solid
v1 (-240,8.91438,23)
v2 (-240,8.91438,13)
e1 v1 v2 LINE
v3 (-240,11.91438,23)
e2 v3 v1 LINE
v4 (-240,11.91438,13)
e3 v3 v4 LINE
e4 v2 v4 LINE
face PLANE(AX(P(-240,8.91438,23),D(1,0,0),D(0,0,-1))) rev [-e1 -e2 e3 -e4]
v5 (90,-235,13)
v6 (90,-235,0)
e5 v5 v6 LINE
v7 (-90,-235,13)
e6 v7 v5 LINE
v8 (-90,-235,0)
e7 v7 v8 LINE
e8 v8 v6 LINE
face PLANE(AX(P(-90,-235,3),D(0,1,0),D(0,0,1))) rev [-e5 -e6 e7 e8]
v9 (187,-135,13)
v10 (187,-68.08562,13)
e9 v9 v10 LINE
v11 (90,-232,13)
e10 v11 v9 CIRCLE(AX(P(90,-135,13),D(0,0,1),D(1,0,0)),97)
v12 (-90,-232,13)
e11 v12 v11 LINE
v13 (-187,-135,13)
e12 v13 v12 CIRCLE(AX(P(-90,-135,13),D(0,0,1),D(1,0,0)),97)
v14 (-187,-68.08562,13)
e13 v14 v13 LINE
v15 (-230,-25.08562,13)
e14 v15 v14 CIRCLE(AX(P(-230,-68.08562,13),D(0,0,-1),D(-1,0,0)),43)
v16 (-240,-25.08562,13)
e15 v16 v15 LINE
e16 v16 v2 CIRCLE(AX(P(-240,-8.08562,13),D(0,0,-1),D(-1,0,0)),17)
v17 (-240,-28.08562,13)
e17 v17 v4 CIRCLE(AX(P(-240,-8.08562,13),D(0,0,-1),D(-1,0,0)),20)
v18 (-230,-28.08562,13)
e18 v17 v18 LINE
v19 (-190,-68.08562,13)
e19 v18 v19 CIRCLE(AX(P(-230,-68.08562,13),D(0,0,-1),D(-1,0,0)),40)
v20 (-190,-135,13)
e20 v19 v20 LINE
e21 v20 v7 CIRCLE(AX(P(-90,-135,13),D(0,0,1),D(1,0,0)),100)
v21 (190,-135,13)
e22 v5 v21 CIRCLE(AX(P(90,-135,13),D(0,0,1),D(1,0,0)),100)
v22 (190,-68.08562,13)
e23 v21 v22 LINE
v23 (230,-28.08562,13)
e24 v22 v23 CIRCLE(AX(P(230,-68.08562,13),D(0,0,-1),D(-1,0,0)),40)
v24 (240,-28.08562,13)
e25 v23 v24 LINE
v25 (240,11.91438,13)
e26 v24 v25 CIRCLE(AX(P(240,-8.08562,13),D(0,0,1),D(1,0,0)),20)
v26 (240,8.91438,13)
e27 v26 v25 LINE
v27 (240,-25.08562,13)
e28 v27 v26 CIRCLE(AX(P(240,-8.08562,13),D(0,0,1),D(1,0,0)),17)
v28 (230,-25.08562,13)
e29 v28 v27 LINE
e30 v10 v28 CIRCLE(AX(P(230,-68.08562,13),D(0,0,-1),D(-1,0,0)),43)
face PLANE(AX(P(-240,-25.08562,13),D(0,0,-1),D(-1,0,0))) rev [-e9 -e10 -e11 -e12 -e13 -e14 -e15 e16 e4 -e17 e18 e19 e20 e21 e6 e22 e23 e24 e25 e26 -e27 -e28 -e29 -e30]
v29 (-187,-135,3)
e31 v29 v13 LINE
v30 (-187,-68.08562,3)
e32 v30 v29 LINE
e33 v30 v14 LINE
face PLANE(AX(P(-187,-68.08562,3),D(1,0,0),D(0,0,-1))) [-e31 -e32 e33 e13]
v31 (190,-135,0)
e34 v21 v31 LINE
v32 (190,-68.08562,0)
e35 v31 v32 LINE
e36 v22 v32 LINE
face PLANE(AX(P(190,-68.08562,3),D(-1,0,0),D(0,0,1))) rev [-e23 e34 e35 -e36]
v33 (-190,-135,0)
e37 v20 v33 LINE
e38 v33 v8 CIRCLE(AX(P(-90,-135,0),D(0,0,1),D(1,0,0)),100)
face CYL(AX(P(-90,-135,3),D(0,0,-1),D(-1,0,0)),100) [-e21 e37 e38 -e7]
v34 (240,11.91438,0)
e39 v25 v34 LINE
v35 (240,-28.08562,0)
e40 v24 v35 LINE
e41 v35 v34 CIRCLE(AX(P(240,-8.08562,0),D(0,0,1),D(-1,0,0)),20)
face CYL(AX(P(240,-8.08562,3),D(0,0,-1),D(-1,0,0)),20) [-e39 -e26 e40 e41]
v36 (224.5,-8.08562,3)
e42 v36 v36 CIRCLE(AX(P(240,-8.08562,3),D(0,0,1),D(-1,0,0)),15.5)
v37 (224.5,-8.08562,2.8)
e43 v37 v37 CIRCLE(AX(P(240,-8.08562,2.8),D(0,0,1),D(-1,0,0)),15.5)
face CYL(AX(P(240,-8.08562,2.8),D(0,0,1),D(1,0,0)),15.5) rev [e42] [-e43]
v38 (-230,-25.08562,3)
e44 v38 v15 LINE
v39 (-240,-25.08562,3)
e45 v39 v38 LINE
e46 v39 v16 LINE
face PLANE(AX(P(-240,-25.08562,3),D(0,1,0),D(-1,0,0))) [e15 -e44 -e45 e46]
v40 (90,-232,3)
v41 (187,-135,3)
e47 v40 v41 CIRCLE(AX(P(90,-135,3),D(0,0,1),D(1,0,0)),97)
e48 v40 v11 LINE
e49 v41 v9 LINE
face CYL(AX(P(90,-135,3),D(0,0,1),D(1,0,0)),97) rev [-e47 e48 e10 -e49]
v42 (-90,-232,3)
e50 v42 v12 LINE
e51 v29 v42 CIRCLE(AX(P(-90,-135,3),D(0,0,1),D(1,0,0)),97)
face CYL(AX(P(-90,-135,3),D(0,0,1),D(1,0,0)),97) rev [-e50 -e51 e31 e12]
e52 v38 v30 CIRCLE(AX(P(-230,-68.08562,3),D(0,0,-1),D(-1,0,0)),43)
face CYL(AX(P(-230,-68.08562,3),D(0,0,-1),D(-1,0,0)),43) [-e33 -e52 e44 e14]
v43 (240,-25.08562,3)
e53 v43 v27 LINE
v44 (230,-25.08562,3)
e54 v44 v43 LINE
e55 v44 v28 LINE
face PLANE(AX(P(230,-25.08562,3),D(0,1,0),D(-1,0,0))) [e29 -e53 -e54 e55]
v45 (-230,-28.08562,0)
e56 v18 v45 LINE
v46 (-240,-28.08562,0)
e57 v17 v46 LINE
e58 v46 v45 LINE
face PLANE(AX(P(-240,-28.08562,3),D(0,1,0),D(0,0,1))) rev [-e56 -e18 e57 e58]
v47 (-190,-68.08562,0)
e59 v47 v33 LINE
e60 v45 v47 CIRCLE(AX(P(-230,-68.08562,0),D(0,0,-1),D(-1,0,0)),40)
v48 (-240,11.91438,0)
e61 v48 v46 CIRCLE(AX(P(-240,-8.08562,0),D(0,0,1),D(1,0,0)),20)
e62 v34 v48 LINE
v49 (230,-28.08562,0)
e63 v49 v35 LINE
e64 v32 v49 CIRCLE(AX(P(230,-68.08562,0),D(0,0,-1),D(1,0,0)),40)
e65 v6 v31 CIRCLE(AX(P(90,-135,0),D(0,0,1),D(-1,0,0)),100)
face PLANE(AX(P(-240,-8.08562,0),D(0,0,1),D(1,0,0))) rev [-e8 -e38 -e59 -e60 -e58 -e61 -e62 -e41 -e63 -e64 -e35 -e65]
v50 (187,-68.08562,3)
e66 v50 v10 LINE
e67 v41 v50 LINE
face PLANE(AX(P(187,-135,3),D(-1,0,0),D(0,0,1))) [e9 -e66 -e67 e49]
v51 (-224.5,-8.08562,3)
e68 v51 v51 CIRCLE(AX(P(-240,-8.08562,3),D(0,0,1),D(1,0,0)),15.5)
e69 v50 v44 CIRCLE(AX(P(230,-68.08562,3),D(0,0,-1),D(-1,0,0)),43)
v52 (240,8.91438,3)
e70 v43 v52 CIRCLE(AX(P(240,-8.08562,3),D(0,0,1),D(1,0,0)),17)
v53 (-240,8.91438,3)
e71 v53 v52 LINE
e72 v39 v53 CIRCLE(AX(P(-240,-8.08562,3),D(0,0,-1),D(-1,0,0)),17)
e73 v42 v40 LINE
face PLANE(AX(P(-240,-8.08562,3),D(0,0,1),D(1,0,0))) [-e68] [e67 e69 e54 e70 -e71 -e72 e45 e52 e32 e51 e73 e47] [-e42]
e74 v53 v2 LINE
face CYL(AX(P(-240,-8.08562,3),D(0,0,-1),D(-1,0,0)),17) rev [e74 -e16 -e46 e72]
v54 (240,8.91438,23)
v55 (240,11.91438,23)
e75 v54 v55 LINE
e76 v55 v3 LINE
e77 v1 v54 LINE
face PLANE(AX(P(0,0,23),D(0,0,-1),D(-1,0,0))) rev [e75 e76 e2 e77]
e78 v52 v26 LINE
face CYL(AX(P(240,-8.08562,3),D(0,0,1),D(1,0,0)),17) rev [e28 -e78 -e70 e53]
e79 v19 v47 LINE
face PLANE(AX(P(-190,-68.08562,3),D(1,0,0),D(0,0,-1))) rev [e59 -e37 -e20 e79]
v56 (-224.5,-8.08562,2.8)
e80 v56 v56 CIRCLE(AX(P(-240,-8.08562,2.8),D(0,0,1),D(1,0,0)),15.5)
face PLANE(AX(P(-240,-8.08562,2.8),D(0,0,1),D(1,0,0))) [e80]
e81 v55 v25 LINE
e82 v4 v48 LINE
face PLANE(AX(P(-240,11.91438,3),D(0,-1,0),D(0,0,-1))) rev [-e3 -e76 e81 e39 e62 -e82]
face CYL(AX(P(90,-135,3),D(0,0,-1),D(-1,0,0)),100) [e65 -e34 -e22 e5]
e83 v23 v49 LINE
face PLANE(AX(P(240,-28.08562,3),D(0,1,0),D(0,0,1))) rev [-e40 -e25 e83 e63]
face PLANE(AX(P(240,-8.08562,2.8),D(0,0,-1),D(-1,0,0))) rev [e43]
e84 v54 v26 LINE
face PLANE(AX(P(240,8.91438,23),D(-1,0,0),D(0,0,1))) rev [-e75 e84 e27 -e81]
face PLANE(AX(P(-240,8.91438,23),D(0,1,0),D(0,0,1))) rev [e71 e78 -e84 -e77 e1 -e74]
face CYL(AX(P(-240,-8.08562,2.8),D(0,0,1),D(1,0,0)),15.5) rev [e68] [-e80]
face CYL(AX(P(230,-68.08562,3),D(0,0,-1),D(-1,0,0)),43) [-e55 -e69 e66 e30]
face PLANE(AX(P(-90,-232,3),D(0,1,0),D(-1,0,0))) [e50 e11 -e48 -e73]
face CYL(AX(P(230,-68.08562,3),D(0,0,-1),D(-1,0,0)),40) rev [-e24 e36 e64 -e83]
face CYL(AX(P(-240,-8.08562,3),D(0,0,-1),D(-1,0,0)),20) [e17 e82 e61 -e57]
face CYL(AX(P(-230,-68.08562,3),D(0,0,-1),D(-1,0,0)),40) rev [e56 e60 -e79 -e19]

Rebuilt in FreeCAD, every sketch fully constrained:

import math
import FreeCAD as App
import Part
import Sketcher

V = App.Vector
Q = App.Units.Quantity

doc = App.newDocument("Part")
body = doc.addObject("PartDesign::Body", "Body")

# Sketch on XY plane
sketch1 = body.newObject("Sketcher::SketchObject", "Sketch")
sketch1.AttachmentSupport = (doc.getObject("XY_Plane"), [""])
sketch1.MapMode = "FlatFace"
sketch1.addGeometry(Part.LineSegment(V(-240, -28.08562, 0), V(-230, -28.08562, 0)), False)
sketch1.addGeometry(Part.ArcOfCircle(Part.Circle(V(-230, -68.08562, 0), V(0, 0, 1), 40), math.radians(0), math.radians(90)), False)
sketch1.addGeometry(Part.LineSegment(V(-190, -68.08562, 0), V(-190, -135, 0)), False)
sketch1.addGeometry(Part.ArcOfCircle(Part.Circle(V(-90, -135, 0), V(0, 0, 1), 100), math.radians(180), math.radians(270)), False)
sketch1.addGeometry(Part.LineSegment(V(-90, -235, 0), V(90, -235, 0)), False)
sketch1.addGeometry(Part.ArcOfCircle(Part.Circle(V(90, -135, 0), V(0, 0, 1), 100), math.radians(-90), math.radians(0)), False)
sketch1.addGeometry(Part.LineSegment(V(190, -135, 0), V(190, -68.08562, 0)), False)
sketch1.addGeometry(Part.ArcOfCircle(Part.Circle(V(230, -68.08562, 0), V(0, 0, 1), 40), math.radians(90), math.radians(180)), False)
sketch1.addGeometry(Part.LineSegment(V(230, -28.08562, 0), V(240, -28.08562, 0)), False)
sketch1.addGeometry(Part.ArcOfCircle(Part.Circle(V(240, -8.08562, 0), V(0, 0, 1), 20), math.radians(-90), math.radians(90)), False)
sketch1.addGeometry(Part.LineSegment(V(240, 11.91438, 0), V(-240, 11.91438, 0)), False)
sketch1.addGeometry(Part.ArcOfCircle(Part.Circle(V(-240, -8.08562, 0), V(0, 0, 1), 20), math.radians(90), math.radians(270)), False)
sketch1.addConstraint(Sketcher.Constraint("Tangent", 0, 2, 1, 2))
sketch1.addConstraint(Sketcher.Constraint("Tangent", 1, 1, 2, 1))
sketch1.addConstraint(Sketcher.Constraint("Tangent", 2, 2, 3, 1))
sketch1.addConstraint(Sketcher.Constraint("Tangent", 3, 2, 4, 1))
sketch1.addConstraint(Sketcher.Constraint("Tangent", 4, 2, 5, 1))
sketch1.addConstraint(Sketcher.Constraint("Tangent", 5, 2, 6, 1))
sketch1.addConstraint(Sketcher.Constraint("Tangent", 6, 2, 7, 2))
sketch1.addConstraint(Sketcher.Constraint("Tangent", 7, 1, 8, 1))
sketch1.addConstraint(Sketcher.Constraint("Tangent", 8, 2, 9, 1))
sketch1.addConstraint(Sketcher.Constraint("Tangent", 9, 2, 10, 1))
sketch1.addConstraint(Sketcher.Constraint("Tangent", 10, 2, 11, 1))
sketch1.addConstraint(Sketcher.Constraint("Tangent", 11, 2, 0, 1))
sketch1.addConstraint(Sketcher.Constraint("Horizontal", 0))
sketch1.addConstraint(Sketcher.Constraint("Vertical", 2))
sketch1.addConstraint(Sketcher.Constraint("Horizontal", 4))
sketch1.addConstraint(Sketcher.Constraint("Vertical", 6))
sketch1.addConstraint(Sketcher.Constraint("Horizontal", 8))
sketch1.addConstraint(Sketcher.Constraint("Horizontal", 10))
sketch1.addConstraint(Sketcher.Constraint("Equal", 3, 5))
sketch1.addConstraint(Sketcher.Constraint("Equal", 1, 7))
sketch1.addConstraint(Sketcher.Constraint("Equal", 9, 11))
sketch1.addConstraint(Sketcher.Constraint("Equal", 0, 8))
sketch1.addConstraint(Sketcher.Constraint("Radius", 1, Q("40 mm")))
sketch1.addConstraint(Sketcher.Constraint("Radius", 3, Q("100 mm")))
sketch1.addConstraint(Sketcher.Constraint("Radius", 9, Q("20 mm")))
sketch1.addConstraint(Sketcher.Constraint("DistanceX", 0, 1, 0, 2, Q("10 mm")))
sketch1.addConstraint(Sketcher.Constraint("DistanceX", 4, 1, 4, 2, Q("180 mm")))
sketch1.addConstraint(Sketcher.Constraint("DistanceX", 1, 3, -1, 1, Q("230 mm")))
sketch1.addConstraint(Sketcher.Constraint("DistanceY", 3, 3, -1, 1, Q("135 mm")))
sketch1.addConstraint(Sketcher.Constraint("DistanceY", 2, 2, 2, 1, Q("66.91438 mm")))
pad1 = body.newObject("PartDesign::Pad", "Pad")
pad1.Profile = sketch1
pad1.Length = 3

# Sketch on XY plane
sketch2 = body.newObject("Sketcher::SketchObject", "Sketch001")
sketch2.AttachmentSupport = (doc.getObject("XY_Plane"), [""])
sketch2.MapMode = "FlatFace"
sketch2.AttachmentOffset = App.Placement(V(0, 0, 3), App.Rotation())
sketch2.addGeometry(Part.LineSegment(V(-240, 11.91438, 0), V(-240, 8.91438, 0)), False)
sketch2.addGeometry(Part.LineSegment(V(-240, 8.91438, 0), V(240, 8.91438, 0)), False)
sketch2.addGeometry(Part.LineSegment(V(240, 8.91438, 0), V(240, 11.91438, 0)), False)
sketch2.addGeometry(Part.LineSegment(V(240, 11.91438, 0), V(-240, 11.91438, 0)), False)
sketch2.addConstraint(Sketcher.Constraint("Coincident", 0, 2, 1, 1))
sketch2.addConstraint(Sketcher.Constraint("Coincident", 1, 2, 2, 1))
sketch2.addConstraint(Sketcher.Constraint("Coincident", 2, 2, 3, 1))
sketch2.addConstraint(Sketcher.Constraint("Coincident", 3, 2, 0, 1))
sketch2.addConstraint(Sketcher.Constraint("Vertical", 0))
sketch2.addConstraint(Sketcher.Constraint("Horizontal", 1))
sketch2.addConstraint(Sketcher.Constraint("Vertical", 2))
sketch2.addConstraint(Sketcher.Constraint("Horizontal", 3))
sketch2.addConstraint(Sketcher.Constraint("DistanceX", 1, 1, 1, 2, Q("480 mm")))
sketch2.addConstraint(Sketcher.Constraint("DistanceY", 0, 2, 0, 1, Q("3 mm")))
sketch2.addConstraint(Sketcher.Constraint("DistanceX", 0, 2, -1, 1, Q("240 mm")))
sketch2.addConstraint(Sketcher.Constraint("DistanceY", -1, 1, 0, 2, Q("8.91438 mm")))
pad2 = body.newObject("PartDesign::Pad", "Pad001")
pad2.Profile = sketch2
pad2.Length = 20

# Sketch on XY plane
sketch3 = body.newObject("Sketcher::SketchObject", "Sketch002")
sketch3.AttachmentSupport = (doc.getObject("XY_Plane"), [""])
sketch3.MapMode = "FlatFace"
sketch3.AttachmentOffset = App.Placement(V(0, 0, 3), App.Rotation())
sketch3.addGeometry(Part.Circle(V(-240, -8.08562, 0), V(0, 0, 1), 15.5), False)
sketch3.addGeometry(Part.Circle(V(240, -8.08562, 0), V(0, 0, 1), 15.5), False)
sketch3.addConstraint(Sketcher.Constraint("Equal", 0, 1))
sketch3.addConstraint(Sketcher.Constraint("Symmetric", 0, 3, 1, 3, -2))
sketch3.addConstraint(Sketcher.Constraint("Diameter", 0, Q("31 mm")))
sketch3.addConstraint(Sketcher.Constraint("DistanceX", 0, 3, -1, 1, Q("240 mm")))
sketch3.addConstraint(Sketcher.Constraint("DistanceY", 0, 3, -1, 1, Q("8.08562 mm")))
pocket1 = body.newObject("PartDesign::Pocket", "Pocket")
pocket1.Profile = sketch3
pocket1.Length = 0.2

# Sketch on YZ plane
sketch4 = body.newObject("Sketcher::SketchObject", "Sketch003")
sketch4.AttachmentSupport = (doc.getObject("YZ_Plane"), [""])
sketch4.MapMode = "FlatFace"
sketch4.AttachmentOffset = App.Placement(V(0, 0, -240), App.Rotation())
sketch4.addGeometry(Part.LineSegment(V(11.91438, 3, 0), V(8.91438, 3, 0)), False)
sketch4.addGeometry(Part.LineSegment(V(8.91438, 3, 0), V(8.91438, 13, 0)), False)
sketch4.addGeometry(Part.LineSegment(V(8.91438, 13, 0), V(11.91438, 13, 0)), False)
sketch4.addGeometry(Part.LineSegment(V(11.91438, 13, 0), V(11.91438, 3, 0)), False)
sketch4.addConstraint(Sketcher.Constraint("Coincident", 0, 2, 1, 1))
sketch4.addConstraint(Sketcher.Constraint("Coincident", 1, 2, 2, 1))
sketch4.addConstraint(Sketcher.Constraint("Coincident", 2, 2, 3, 1))
sketch4.addConstraint(Sketcher.Constraint("Coincident", 3, 2, 0, 1))
sketch4.addConstraint(Sketcher.Constraint("Horizontal", 0))
sketch4.addConstraint(Sketcher.Constraint("Vertical", 1))
sketch4.addConstraint(Sketcher.Constraint("Horizontal", 2))
sketch4.addConstraint(Sketcher.Constraint("Vertical", 3))
sketch4.addConstraint(Sketcher.Constraint("DistanceX", 0, 2, 0, 1, Q("3 mm")))
sketch4.addConstraint(Sketcher.Constraint("DistanceY", 1, 1, 1, 2, Q("10 mm")))
sketch4.addConstraint(Sketcher.Constraint("DistanceY", -1, 1, 0, 2, Q("3 mm")))
sketch4.addConstraint(Sketcher.Constraint("DistanceX", -1, 1, 0, 2, Q("8.91438 mm")))

# Sketch on XY plane
sketch5 = body.newObject("Sketcher::SketchObject", "Sketch004")
sketch5.AttachmentSupport = (doc.getObject("XY_Plane"), [""])
sketch5.MapMode = "FlatFace"
sketch5.AttachmentOffset = App.Placement(V(0, 0, 3), App.Rotation())
sketch5.addGeometry(Part.ArcOfCircle(Part.Circle(V(-240, -8.08562, 0), V(0, 0, 1), 20), math.radians(90), math.radians(270)), False)
sketch5.addGeometry(Part.LineSegment(V(-240, -28.08562, 0), V(-230, -28.08562, 0)), False)
sketch5.addGeometry(Part.ArcOfCircle(Part.Circle(V(-230, -68.08562, 0), V(0, 0, 1), 40), math.radians(0), math.radians(90)), False)
sketch5.addGeometry(Part.LineSegment(V(-190, -68.08562, 0), V(-190, -135, 0)), False)
sketch5.addGeometry(Part.ArcOfCircle(Part.Circle(V(-90, -135, 0), V(0, 0, 1), 100), math.radians(180), math.radians(270)), False)
sketch5.addGeometry(Part.LineSegment(V(-90, -235, 0), V(90, -235, 0)), False)
sketch5.addGeometry(Part.ArcOfCircle(Part.Circle(V(90, -135, 0), V(0, 0, 1), 100), math.radians(-90), math.radians(0)), False)
sketch5.addGeometry(Part.LineSegment(V(190, -135, 0), V(190, -68.08562, 0)), False)
sketch5.addGeometry(Part.ArcOfCircle(Part.Circle(V(230, -68.08562, 0), V(0, 0, 1), 40), math.radians(90), math.radians(180)), False)
sketch5.addGeometry(Part.LineSegment(V(230, -28.08562, 0), V(240, -28.08562, 0)), False)
sketch5.addGeometry(Part.ArcOfCircle(Part.Circle(V(240, -8.08562, 0), V(0, 0, 1), 20), math.radians(-90), math.radians(90)), False)
sketch5.addConstraint(Sketcher.Constraint("Tangent", 0, 2, 1, 1))
sketch5.addConstraint(Sketcher.Constraint("Tangent", 1, 2, 2, 2))
sketch5.addConstraint(Sketcher.Constraint("Tangent", 2, 1, 3, 1))
sketch5.addConstraint(Sketcher.Constraint("Tangent", 3, 2, 4, 1))
sketch5.addConstraint(Sketcher.Constraint("Tangent", 4, 2, 5, 1))
sketch5.addConstraint(Sketcher.Constraint("Tangent", 5, 2, 6, 1))
sketch5.addConstraint(Sketcher.Constraint("Tangent", 6, 2, 7, 1))
sketch5.addConstraint(Sketcher.Constraint("Tangent", 7, 2, 8, 2))
sketch5.addConstraint(Sketcher.Constraint("Tangent", 8, 1, 9, 1))
sketch5.addConstraint(Sketcher.Constraint("Tangent", 9, 2, 10, 1))
sketch5.addConstraint(Sketcher.Constraint("Horizontal", 1))
sketch5.addConstraint(Sketcher.Constraint("Vertical", 3))
sketch5.addConstraint(Sketcher.Constraint("Horizontal", 5))
sketch5.addConstraint(Sketcher.Constraint("Vertical", 7))
sketch5.addConstraint(Sketcher.Constraint("Horizontal", 9))
sketch5.addConstraint(Sketcher.Constraint("Equal", 4, 6))
sketch5.addConstraint(Sketcher.Constraint("Equal", 2, 8))
sketch5.addConstraint(Sketcher.Constraint("Equal", 0, 10))
sketch5.addConstraint(Sketcher.Constraint("Symmetric", 2, 3, 8, 3, -2))
sketch5.addConstraint(Sketcher.Constraint("Vertical", 9, 2, 10, 2))
sketch5.addConstraint(Sketcher.Constraint("Equal", 1, 9))
sketch5.addConstraint(Sketcher.Constraint("Radius", 0, Q("20 mm")))
sketch5.addConstraint(Sketcher.Constraint("Radius", 2, Q("40 mm")))
sketch5.addConstraint(Sketcher.Constraint("Radius", 4, Q("100 mm")))
sketch5.addConstraint(Sketcher.Constraint("DistanceX", 1, 1, 1, 2, Q("10 mm")))
sketch5.addConstraint(Sketcher.Constraint("DistanceX", 5, 1, 5, 2, Q("180 mm")))
sketch5.addConstraint(Sketcher.Constraint("DistanceY", 4, 3, -1, 1, Q("135 mm")))
sketch5.addConstraint(Sketcher.Constraint("DistanceX", 0, 1, -1, 1, Q("240 mm")))
sketch5.addConstraint(Sketcher.Constraint("DistanceY", 3, 2, 3, 1, Q("66.91438 mm")))
doc.recompute()

additivepipe = body.newObject("PartDesign::AdditivePipe", "AdditivePipe")
additivepipe.Profile = sketch4
additivepipe.Spine = (sketch5, ["Edge1", "Edge2", "Edge3", "Edge4", "Edge5", "Edge6", "Edge7", "Edge8", "Edge9", "Edge10", "Edge11"])

doc.recompute()
